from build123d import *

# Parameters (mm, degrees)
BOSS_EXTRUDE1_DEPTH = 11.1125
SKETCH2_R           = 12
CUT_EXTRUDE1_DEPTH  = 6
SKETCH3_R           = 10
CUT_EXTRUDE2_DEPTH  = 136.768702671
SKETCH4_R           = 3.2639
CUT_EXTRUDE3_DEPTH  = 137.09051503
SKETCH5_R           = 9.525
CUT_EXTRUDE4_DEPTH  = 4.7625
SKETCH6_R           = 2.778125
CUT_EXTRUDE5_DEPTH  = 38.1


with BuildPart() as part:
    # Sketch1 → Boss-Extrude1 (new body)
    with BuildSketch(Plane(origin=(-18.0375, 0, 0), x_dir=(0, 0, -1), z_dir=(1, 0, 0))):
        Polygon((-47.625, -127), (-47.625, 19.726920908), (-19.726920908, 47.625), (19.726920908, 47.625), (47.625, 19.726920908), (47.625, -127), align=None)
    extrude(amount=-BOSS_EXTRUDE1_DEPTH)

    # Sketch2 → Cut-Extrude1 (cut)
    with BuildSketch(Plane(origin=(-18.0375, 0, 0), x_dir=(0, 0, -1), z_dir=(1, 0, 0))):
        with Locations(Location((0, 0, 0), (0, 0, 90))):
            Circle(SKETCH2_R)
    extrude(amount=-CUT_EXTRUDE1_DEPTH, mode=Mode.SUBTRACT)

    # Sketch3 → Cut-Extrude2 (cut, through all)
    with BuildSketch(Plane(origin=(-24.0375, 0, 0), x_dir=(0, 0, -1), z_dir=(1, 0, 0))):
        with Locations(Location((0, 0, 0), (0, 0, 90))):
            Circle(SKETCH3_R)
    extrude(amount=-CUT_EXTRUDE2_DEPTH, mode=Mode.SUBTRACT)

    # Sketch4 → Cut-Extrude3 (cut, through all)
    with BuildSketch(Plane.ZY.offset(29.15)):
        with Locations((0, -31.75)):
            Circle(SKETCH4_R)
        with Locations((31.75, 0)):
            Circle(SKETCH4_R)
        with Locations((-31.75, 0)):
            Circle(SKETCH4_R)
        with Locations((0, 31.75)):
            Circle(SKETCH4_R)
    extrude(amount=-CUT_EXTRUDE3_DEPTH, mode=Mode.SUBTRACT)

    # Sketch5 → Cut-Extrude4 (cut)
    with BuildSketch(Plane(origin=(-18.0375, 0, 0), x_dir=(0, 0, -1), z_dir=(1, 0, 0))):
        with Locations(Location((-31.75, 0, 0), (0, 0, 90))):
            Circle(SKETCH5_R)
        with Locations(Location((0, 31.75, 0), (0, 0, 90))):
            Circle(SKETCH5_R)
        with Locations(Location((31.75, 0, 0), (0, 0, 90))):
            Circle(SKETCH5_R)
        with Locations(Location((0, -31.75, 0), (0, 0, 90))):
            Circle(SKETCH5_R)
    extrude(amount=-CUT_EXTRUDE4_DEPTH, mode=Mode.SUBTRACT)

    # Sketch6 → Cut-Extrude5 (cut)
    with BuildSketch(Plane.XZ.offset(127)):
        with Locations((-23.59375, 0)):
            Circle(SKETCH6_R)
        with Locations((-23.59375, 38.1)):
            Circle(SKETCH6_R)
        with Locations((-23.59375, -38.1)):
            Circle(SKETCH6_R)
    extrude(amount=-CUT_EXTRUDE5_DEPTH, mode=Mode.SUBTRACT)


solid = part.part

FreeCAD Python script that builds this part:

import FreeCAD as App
import Part
import Sketcher
Q = App.Units.Quantity

doc = App.newDocument("Part")
body = doc.addObject("PartDesign::Body", "Body")

sketch1 = body.newObject("Sketcher::SketchObject", "Sketch")
sketch1.AttachmentSupport = (doc.getObject("YZ_Plane"), [""])
sketch1.MapMode = "FlatFace"
sketch1.AttachmentOffset = App.Placement(App.Vector(0, 0, -18.0375), App.Rotation())
sketch1.addGeometry(Part.LineSegment(App.Vector(20, 48, 0), App.Vector(-127, 48, 0)), False)
sketch1.addGeometry(Part.LineSegment(App.Vector(-127, 48, 0), App.Vector(-127, -48, 0)), False)
sketch1.addGeometry(Part.LineSegment(App.Vector(-127, -48, 0), App.Vector(20, -48, 0)), False)
sketch1.addGeometry(Part.LineSegment(App.Vector(20, -48, 0), App.Vector(48, -20, 0)), False)
sketch1.addGeometry(Part.LineSegment(App.Vector(48, -20, 0), App.Vector(48, 20, 0)), False)
sketch1.addGeometry(Part.LineSegment(App.Vector(48, 20, 0), App.Vector(20, 48, 0)), False)
sketch1.addConstraint(Sketcher.Constraint("Coincident", 0, 2, 1, 1))
sketch1.addConstraint(Sketcher.Constraint("Coincident", 1, 2, 2, 1))
sketch1.addConstraint(Sketcher.Constraint("Coincident", 2, 2, 3, 1))
sketch1.addConstraint(Sketcher.Constraint("Coincident", 3, 2, 4, 1))
sketch1.addConstraint(Sketcher.Constraint("Coincident", 4, 2, 5, 1))
sketch1.addConstraint(Sketcher.Constraint("Coincident", 5, 2, 0, 1))
sketch1.addConstraint(Sketcher.Constraint("Horizontal", 0))
sketch1.addConstraint(Sketcher.Constraint("Vertical", 1))
sketch1.addConstraint(Sketcher.Constraint("Horizontal", 2))
sketch1.addConstraint(Sketcher.Constraint("Vertical", 4))
sketch1.addConstraint(Sketcher.Constraint("Symmetric", 2, 2, 5, 2, -1))
sketch1.addConstraint(Sketcher.Constraint("Perpendicular", 3, 5))
sketch1.addConstraint(Sketcher.Constraint("Equal", 3, 5))
sketch1.addConstraint(Sketcher.Constraint("DistanceX", 0, 2, -1, 1, Q("5 in")))
sketch1.addConstraint(Sketcher.Constraint("DistanceY", 1, 2, 1, 1, Q("3.75 in")))
sketch1.addConstraint(Sketcher.Constraint("DistanceX", -1, 1, 3, 2, Q("1.875 in")))
sketch1.addConstraint(Sketcher.Constraint("DistanceX", 0, 2, 0, 1, Q("146.726921 mm")))
pad1 = body.newObject("PartDesign::Pad", "Pad")
pad1.Profile = sketch1
pad1.Length = Q("0.4375 in")
pad1.Reversed = True

sketch2 = body.newObject("Sketcher::SketchObject", "Sketch001")
sketch2.AttachmentSupport = (doc.getObject("YZ_Plane"), [""])
sketch2.MapMode = "FlatFace"
sketch2.AttachmentOffset = App.Placement(App.Vector(0, 0, -18.0375), App.Rotation())
sketch2.addGeometry(Part.Circle(App.Vector(0, 0, 0), App.Vector(0, 0, 1), 12), False)
sketch2.addConstraint(Sketcher.Constraint("Coincident", 0, 3, -1, 1))
sketch2.addConstraint(Sketcher.Constraint("Diameter", 0, Q("24 mm")))
pocket1 = body.newObject("PartDesign::Pocket", "Pocket")
pocket1.Profile = sketch2
pocket1.Length = 6

sketch3 = body.newObject("Sketcher::SketchObject", "Sketch002")
sketch3.AttachmentSupport = (doc.getObject("YZ_Plane"), [""])
sketch3.MapMode = "FlatFace"
sketch3.AttachmentOffset = App.Placement(App.Vector(0, 0, -24.0375), App.Rotation())
sketch3.addGeometry(Part.Circle(App.Vector(0, 0, 0), App.Vector(0, 0, 1), 10), False)
sketch3.addConstraint(Sketcher.Constraint("Coincident", 0, 3, -1, 1))
sketch3.addConstraint(Sketcher.Constraint("Diameter", 0, Q("20 mm")))
pocket2 = body.newObject("PartDesign::Pocket", "Pocket001")
pocket2.Profile = sketch3
pocket2.Type = "ThroughAll"

sketch4 = body.newObject("Sketcher::SketchObject", "Sketch003")
sketch4.AttachmentSupport = (doc.getObject("YZ_Plane"), [""])
sketch4.MapMode = "FlatFace"
sketch4.AttachmentOffset = App.Placement(App.Vector(0, 0, -29.15), App.Rotation())
sketch4.addGeometry(Part.Circle(App.Vector(-31.8, 0, 0), App.Vector(0, 0, 1), 3.3), False)
sketch4.addGeometry(Part.Circle(App.Vector(0, 31.8, 0), App.Vector(0, 0, 1), 3.3), False)
sketch4.addGeometry(Part.Circle(App.Vector(0, -31.8, 0), App.Vector(0, 0, 1), 3.3), False)
sketch4.addGeometry(Part.Circle(App.Vector(31.8, 0, 0), App.Vector(0, 0, 1), 3.3), False)
sketch4.addConstraint(Sketcher.Constraint("Equal", 0, 1))
sketch4.addConstraint(Sketcher.Constraint("Equal", 1, 2))
sketch4.addConstraint(Sketcher.Constraint("Equal", 2, 3))
sketch4.addConstraint(Sketcher.Constraint("Symmetric", 1, 3, 2, 3, -1, 1))
sketch4.addConstraint(Sketcher.Constraint("Symmetric", 0, 3, 3, 3, -1, 1))
sketch4.addConstraint(Sketcher.Constraint("PointOnObject", 0, 3, -1))
sketch4.addConstraint(Sketcher.Constraint("PointOnObject", 1, 3, -2))
sketch4.addConstraint(Sketcher.Constraint("Diameter", 0, Q("0.257 in")))
sketch4.addConstraint(Sketcher.Constraint("DistanceY", 2, 3, 1, 3, Q("2.5 in")))
sketch4.addConstraint(Sketcher.Constraint("DistanceX", 0, 3, 3, 3, Q("2.5 in")))
pocket3 = body.newObject("PartDesign::Pocket", "Pocket002")
pocket3.Profile = sketch4
pocket3.Type = "ThroughAll"
pocket3.Reversed = True

sketch5 = body.newObject("Sketcher::SketchObject", "Sketch004")
sketch5.AttachmentSupport = (doc.getObject("YZ_Plane"), [""])
sketch5.MapMode = "FlatFace"
sketch5.AttachmentOffset = App.Placement(App.Vector(0, 0, -18.0375), App.Rotation())
sketch5.addGeometry(Part.Circle(App.Vector(0, 32, 0), App.Vector(0, 0, 1), 10), False)
sketch5.addGeometry(Part.Circle(App.Vector(32, 0, 0), App.Vector(0, 0, 1), 10), False)
sketch5.addGeometry(Part.Circle(App.Vector(0, -32, 0), App.Vector(0, 0, 1), 10), False)
sketch5.addGeometry(Part.Circle(App.Vector(-32, 0, 0), App.Vector(0, 0, 1), 10), False)
sketch5.addConstraint(Sketcher.Constraint("Equal", 0, 1))
sketch5.addConstraint(Sketcher.Constraint("Equal", 1, 2))
sketch5.addConstraint(Sketcher.Constraint("Equal", 2, 3))
sketch5.addConstraint(Sketcher.Constraint("Symmetric", 0, 3, 2, 3, -1, 1))
sketch5.addConstraint(Sketcher.Constraint("Symmetric", 1, 3, 3, 3, -1, 1))
sketch5.addConstraint(Sketcher.Constraint("PointOnObject", 0, 3, -2))
sketch5.addConstraint(Sketcher.Constraint("PointOnObject", 1, 3, -1))
sketch5.addConstraint(Sketcher.Constraint("Diameter", 0, Q("0.75 in")))
sketch5.addConstraint(Sketcher.Constraint("DistanceY", 2, 3, 0, 3, Q("2.5 in")))
sketch5.addConstraint(Sketcher.Constraint("DistanceX", 3, 3, 1, 3, Q("2.5 in")))
pocket4 = body.newObject("PartDesign::Pocket", "Pocket003")
pocket4.Profile = sketch5
pocket4.Length = Q("0.1875 in")

sketch6 = body.newObject("Sketcher::SketchObject", "Sketch005")
sketch6.AttachmentSupport = (doc.getObject("XZ_Plane"), [""])
sketch6.MapMode = "FlatFace"
sketch6.AttachmentOffset = App.Placement(App.Vector(0, 0, 5 * 25.4), App.Rotation())
sketch6.addGeometry(Part.Circle(App.Vector(-23.6, 0, 0), App.Vector(0, 0, 1), 2.8), False)
sketch6.addGeometry(Part.Circle(App.Vector(-23.6, 38.1, 0), App.Vector(0, 0, 1), 2.8), False)
sketch6.addGeometry(Part.Circle(App.Vector(-23.6, -38.1, 0), App.Vector(0, 0, 1), 2.8), False)
sketch6.addConstraint(Sketcher.Constraint("Equal", 0, 1))
sketch6.addConstraint(Sketcher.Constraint("Equal", 1, 2))
sketch6.addConstraint(Sketcher.Constraint("Symmetric", 1, 3, 2, 3, -1))
sketch6.addConstraint(Sketcher.Constraint("PointOnObject", 0, 3, -1))
sketch6.addConstraint(Sketcher.Constraint("Vertical", 0, 3, 1, 3))
sketch6.addConstraint(Sketcher.Constraint("Diameter", 0, Q("0.21875 in")))
sketch6.addConstraint(Sketcher.Constraint("DistanceY", 2, 3, 1, 3, Q("3 in")))
sketch6.addConstraint(Sketcher.Constraint("DistanceX", 0, 3, -1, 1, Q("23.59375 mm")))
pocket5 = body.newObject("PartDesign::Pocket", "Pocket004")
pocket5.Profile = sketch6
pocket5.Length = Q("1.5 in")

doc.recompute()
